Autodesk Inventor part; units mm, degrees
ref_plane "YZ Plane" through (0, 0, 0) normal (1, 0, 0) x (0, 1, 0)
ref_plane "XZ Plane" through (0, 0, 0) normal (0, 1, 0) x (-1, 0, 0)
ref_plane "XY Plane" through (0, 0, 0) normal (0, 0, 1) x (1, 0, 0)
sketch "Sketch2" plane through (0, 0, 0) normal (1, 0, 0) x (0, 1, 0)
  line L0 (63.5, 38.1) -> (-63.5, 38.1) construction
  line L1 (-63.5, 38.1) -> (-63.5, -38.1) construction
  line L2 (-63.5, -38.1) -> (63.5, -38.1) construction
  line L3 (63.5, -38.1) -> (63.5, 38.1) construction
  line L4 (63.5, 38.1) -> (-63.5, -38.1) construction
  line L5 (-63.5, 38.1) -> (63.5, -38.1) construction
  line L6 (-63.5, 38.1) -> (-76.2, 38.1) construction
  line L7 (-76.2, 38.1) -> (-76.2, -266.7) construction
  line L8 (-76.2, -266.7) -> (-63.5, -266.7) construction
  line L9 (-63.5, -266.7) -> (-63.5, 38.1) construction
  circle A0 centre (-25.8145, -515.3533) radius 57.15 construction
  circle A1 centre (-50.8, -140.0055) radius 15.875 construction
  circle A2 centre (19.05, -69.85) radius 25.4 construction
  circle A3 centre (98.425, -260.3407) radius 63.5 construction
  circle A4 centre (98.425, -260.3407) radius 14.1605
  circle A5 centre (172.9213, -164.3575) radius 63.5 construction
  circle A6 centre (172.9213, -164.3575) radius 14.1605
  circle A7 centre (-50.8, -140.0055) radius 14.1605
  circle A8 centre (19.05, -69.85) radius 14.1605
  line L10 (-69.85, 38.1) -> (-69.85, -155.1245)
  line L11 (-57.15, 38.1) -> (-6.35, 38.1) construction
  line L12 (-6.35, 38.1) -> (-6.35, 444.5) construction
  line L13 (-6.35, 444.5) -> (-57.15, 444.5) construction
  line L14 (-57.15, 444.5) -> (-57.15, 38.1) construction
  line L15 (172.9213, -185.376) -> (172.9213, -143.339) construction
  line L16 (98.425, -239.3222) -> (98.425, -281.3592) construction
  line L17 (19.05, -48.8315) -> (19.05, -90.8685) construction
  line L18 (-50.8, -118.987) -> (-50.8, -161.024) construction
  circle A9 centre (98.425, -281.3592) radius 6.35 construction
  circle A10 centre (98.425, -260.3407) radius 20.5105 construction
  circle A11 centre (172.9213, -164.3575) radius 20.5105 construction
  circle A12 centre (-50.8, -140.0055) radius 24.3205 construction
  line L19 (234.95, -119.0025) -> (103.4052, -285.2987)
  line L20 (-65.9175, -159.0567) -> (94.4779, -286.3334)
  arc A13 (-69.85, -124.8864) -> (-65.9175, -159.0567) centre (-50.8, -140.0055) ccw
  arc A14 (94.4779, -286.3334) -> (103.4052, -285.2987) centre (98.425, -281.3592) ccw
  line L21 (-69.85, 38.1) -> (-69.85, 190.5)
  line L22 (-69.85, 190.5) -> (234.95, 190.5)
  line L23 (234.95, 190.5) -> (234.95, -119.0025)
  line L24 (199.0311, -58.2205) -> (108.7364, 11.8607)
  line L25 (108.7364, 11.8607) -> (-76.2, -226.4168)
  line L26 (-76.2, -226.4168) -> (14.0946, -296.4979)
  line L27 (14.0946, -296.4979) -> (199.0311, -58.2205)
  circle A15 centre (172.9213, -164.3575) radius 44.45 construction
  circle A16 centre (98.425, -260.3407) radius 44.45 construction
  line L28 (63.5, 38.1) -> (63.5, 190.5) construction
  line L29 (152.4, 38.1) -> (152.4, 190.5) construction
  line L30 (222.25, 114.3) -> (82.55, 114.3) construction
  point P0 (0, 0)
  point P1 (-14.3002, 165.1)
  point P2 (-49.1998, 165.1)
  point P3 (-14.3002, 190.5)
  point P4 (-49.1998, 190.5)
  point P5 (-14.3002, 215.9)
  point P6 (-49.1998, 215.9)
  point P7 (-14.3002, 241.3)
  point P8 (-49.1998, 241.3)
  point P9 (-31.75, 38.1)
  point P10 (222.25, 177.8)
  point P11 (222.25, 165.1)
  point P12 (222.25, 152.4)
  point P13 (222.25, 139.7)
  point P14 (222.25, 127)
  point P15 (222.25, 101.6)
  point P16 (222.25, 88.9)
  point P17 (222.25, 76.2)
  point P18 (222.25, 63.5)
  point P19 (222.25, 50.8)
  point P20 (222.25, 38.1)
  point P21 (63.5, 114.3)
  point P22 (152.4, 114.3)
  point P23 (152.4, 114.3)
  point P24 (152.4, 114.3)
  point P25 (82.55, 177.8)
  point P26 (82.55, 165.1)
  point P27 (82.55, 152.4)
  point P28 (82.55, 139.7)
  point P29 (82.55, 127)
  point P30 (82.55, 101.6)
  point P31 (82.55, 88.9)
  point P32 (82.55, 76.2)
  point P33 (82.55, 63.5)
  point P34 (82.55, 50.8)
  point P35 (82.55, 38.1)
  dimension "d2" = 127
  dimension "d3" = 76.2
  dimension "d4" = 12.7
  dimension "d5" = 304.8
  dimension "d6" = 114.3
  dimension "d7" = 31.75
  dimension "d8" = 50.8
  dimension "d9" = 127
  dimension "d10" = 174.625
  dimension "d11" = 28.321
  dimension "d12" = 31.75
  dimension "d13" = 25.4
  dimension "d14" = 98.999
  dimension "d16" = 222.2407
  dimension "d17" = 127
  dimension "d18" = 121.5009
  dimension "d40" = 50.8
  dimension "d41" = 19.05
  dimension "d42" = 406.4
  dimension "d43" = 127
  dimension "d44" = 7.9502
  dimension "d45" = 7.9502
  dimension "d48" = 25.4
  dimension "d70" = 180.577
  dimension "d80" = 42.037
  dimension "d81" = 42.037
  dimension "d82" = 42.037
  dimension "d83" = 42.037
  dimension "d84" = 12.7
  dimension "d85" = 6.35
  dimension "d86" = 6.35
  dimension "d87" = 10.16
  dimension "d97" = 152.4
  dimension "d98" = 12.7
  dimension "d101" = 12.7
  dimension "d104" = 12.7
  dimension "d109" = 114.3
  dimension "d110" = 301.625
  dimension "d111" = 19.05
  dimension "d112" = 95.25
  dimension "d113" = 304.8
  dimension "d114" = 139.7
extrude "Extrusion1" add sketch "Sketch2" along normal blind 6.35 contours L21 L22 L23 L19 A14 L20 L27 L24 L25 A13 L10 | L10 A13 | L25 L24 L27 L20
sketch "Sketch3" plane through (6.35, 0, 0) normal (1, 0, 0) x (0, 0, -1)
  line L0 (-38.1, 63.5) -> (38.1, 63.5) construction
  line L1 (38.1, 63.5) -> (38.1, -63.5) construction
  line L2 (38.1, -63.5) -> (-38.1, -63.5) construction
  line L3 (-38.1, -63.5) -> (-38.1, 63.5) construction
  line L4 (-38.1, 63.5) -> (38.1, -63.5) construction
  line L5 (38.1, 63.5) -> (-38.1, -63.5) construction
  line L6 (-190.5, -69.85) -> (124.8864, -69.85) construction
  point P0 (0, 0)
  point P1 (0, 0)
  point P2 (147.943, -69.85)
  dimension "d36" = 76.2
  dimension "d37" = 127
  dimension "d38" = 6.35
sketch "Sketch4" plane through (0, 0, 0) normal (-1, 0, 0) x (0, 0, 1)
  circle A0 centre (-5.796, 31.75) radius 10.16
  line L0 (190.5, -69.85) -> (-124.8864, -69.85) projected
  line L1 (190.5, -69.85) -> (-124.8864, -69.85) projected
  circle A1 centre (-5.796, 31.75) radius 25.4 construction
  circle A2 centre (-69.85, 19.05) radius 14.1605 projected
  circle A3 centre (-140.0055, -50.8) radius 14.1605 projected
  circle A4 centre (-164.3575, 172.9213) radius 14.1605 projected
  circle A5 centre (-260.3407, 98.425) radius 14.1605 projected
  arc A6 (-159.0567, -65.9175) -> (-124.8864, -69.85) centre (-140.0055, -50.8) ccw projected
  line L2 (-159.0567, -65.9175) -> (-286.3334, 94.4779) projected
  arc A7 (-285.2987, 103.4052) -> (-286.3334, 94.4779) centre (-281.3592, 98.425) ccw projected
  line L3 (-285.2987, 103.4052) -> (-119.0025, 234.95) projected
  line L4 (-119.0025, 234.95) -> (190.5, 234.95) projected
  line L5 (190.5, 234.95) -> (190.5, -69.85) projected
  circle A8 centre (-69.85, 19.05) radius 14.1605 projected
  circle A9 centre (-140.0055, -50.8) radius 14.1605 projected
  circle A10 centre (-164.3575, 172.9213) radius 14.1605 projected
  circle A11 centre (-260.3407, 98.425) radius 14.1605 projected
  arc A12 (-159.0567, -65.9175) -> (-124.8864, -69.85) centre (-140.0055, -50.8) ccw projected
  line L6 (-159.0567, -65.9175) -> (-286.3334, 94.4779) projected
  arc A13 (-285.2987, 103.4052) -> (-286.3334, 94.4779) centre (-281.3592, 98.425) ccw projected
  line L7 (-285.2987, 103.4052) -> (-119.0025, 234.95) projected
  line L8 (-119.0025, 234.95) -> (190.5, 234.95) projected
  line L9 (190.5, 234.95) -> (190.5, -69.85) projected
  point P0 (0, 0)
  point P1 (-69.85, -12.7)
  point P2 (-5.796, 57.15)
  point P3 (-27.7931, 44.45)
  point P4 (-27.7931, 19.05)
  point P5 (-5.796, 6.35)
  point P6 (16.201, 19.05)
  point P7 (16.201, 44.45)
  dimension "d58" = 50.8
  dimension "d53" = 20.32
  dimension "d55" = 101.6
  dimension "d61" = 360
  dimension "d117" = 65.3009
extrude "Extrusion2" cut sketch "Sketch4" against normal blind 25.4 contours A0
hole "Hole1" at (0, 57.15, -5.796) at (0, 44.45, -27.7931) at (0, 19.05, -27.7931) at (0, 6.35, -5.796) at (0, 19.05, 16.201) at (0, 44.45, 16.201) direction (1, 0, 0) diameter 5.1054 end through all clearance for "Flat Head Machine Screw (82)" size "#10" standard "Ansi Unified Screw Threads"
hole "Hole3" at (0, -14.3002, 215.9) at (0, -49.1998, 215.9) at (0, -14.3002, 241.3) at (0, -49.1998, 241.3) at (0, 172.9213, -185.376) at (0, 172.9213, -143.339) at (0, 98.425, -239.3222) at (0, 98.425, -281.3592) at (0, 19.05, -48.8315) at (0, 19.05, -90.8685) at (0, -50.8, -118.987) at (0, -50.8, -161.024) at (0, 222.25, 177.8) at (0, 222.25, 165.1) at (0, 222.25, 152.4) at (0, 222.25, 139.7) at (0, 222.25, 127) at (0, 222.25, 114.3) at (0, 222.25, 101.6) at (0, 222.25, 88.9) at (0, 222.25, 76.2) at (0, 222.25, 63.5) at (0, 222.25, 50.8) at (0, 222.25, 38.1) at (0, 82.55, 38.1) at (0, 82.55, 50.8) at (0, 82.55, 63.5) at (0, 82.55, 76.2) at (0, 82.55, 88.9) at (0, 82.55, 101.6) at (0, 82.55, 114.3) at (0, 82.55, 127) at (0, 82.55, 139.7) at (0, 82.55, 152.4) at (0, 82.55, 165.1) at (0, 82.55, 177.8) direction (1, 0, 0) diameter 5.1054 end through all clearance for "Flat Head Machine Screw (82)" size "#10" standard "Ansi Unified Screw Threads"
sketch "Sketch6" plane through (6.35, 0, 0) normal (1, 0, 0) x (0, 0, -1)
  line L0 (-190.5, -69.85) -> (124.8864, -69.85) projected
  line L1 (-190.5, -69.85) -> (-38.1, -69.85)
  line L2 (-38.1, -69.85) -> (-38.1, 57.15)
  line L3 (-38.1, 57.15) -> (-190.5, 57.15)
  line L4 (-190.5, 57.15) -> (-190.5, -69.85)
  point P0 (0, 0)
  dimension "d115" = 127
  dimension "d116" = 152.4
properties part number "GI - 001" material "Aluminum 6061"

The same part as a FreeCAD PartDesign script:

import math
import FreeCAD as App
import Part
import Sketcher
from FreeCAD import Vector
Q = App.Units.Quantity

doc = App.newDocument("Part")
params = doc.addObject("Spreadsheet::Sheet", "Params")
for row, (alias, value) in enumerate([
    ("sketch1_width", "12 in"),
    ("sketch1_radius", "0.25 in"),
    ("sketch1_diameter", "1.115 in"),
    ("pad1_length", "0.25 in"),
    ("sketch2_diameter", "0.8 in"),
    ("pocket1_length", "1 in"),
    ("sketch3_diameter", "0.201 in"),
    ("hole_diameter", "0.201 in"),
    ("sketch4_diameter", "0.201 in"),
    ("hole2_diameter", "0.201 in"),
], start=1):
    params.set(f"A{row}", alias)
    params.set(f"B{row}", "=" + value)
    params.setAlias(f"B{row}", alias)

body = doc.addObject("PartDesign::Body", "Body")

# Sketch on YZ plane
sketch1 = body.newObject("Sketcher::SketchObject", "Sketch")
sketch1.AttachmentSupport = (doc.getObject("YZ_Plane"), [""])
sketch1.MapMode = "FlatFace"
sketch1.addGeometry(Part.LineSegment(Vector(-70, 190, 0), Vector(-70, -125, 0)), False)
sketch1.addGeometry(Part.ArcOfCircle(Part.Circle(Vector(-51, -140, 0), Vector(0, 0, 1), 24), math.radians(142), math.radians(232)), False)
sketch1.addGeometry(Part.LineSegment(Vector(-66, -159, 0), Vector(94, -286, 0)), False)
sketch1.addGeometry(Part.ArcOfCircle(Part.Circle(Vector(98, -281, 0), Vector(0, 0, 1), 6), math.radians(-128), math.radians(-38)), False)
sketch1.addGeometry(Part.LineSegment(Vector(103, -285, 0), Vector(235, -119, 0)), False)
sketch1.addGeometry(Part.LineSegment(Vector(235, -119, 0), Vector(235, 190, 0)), False)
sketch1.addGeometry(Part.LineSegment(Vector(235, 190, 0), Vector(-70, 190, 0)), False)
sketch1.addGeometry(Part.Circle(Vector(-51, -140, 0), Vector(0, 0, 1), 14), False)
sketch1.addGeometry(Part.Circle(Vector(19, -70, 0), Vector(0, 0, 1), 14), False)
sketch1.addGeometry(Part.Circle(Vector(98, -260, 0), Vector(0, 0, 1), 14), False)
sketch1.addGeometry(Part.Circle(Vector(173, -164, 0), Vector(0, 0, 1), 14), False)
sketch1.addConstraint(Sketcher.Constraint("Coincident", 0, 2, 1, 1))
sketch1.addConstraint(Sketcher.Constraint("Tangent", 1, 2, 2, 1))
sketch1.addConstraint(Sketcher.Constraint("Tangent", 2, 2, 3, 1))
sketch1.addConstraint(Sketcher.Constraint("Tangent", 3, 2, 4, 1))
sketch1.addConstraint(Sketcher.Constraint("Coincident", 4, 2, 5, 1))
sketch1.addConstraint(Sketcher.Constraint("Coincident", 5, 2, 6, 1))
sketch1.addConstraint(Sketcher.Constraint("Coincident", 6, 2, 0, 1))
sketch1.addConstraint(Sketcher.Constraint("Vertical", 0))
sketch1.addConstraint(Sketcher.Constraint("Vertical", 5))
sketch1.addConstraint(Sketcher.Constraint("Horizontal", 6))
sketch1.addConstraint(Sketcher.Constraint("Coincident", 7, 3, 1, 3))
sketch1.addConstraint(Sketcher.Constraint("Equal", 7, 8))
sketch1.addConstraint(Sketcher.Constraint("Equal", 8, 9))
sketch1.addConstraint(Sketcher.Constraint("Equal", 9, 10))
sketch1.addConstraint(Sketcher.Constraint("Vertical", 3, 3, 9, 3))
sketch1.addConstraint(Sketcher.Constraint("DistanceX", 6, 2, 6, 1, Q("12 in")))
sketch1.addConstraint(Sketcher.Constraint("Radius", 3, Q("0.25 in")))
sketch1.addConstraint(Sketcher.Constraint("Diameter", 7, Q("1.115 in")))
sketch1.addConstraint(Sketcher.Constraint("DistanceX", 1, 3, -1, 1, Q("2 in")))
sketch1.addConstraint(Sketcher.Constraint("DistanceX", -1, 1, 8, 3, Q("0.75 in")))
sketch1.addConstraint(Sketcher.Constraint("DistanceX", 0, 2, 1, 3, Q("0.75 in")))
sketch1.addConstraint(Sketcher.Constraint("DistanceY", -1, 1, 5, 2, Q("7.5 in")))
sketch1.addConstraint(Sketcher.Constraint("Radius", 1, Q("0.9575 in")))
sketch1.addConstraint(Sketcher.Constraint("DistanceY", 8, 3, -1, 1, Q("2.75 in")))
sketch1.addConstraint(Sketcher.Constraint("DistanceX", -1, 1, 3, 3, Q("3.875 in")))
sketch1.addConstraint(Sketcher.Constraint("DistanceY", 3, 3, 4, 2, Q("6.392 in")))
sketch1.addConstraint(Sketcher.Constraint("DistanceY", 0, 2, 0, 1, Q("315.3864 mm")))
sketch1.addConstraint(Sketcher.Constraint("DistanceY", 5, 1, 5, 2, Q("309.5025 mm")))
sketch1.addConstraint(Sketcher.Constraint("DistanceY", 3, 3, 9, 3, Q("0.8275 in")))
sketch1.addConstraint(Sketcher.Constraint("DistanceY", 2, 2, 10, 3, Q("4.8022 in")))
sketch1.addConstraint(Sketcher.Constraint("DistanceX", -1, 1, 10, 3, Q("172.9213 mm")))
sketch1.setExpression("Constraints[15]", "Params.sketch1_width")
sketch1.setExpression("Constraints[16]", "Params.sketch1_radius")
sketch1.setExpression("Constraints[17]", "Params.sketch1_diameter")
pad1 = body.newObject("PartDesign::Pad", "Pad")
pad1.Profile = sketch1
pad1.setExpression("Length", "Params.pad1_length")

# Sketch on YZ plane
sketch2 = body.newObject("Sketcher::SketchObject", "Sketch001")
sketch2.AttachmentSupport = (doc.getObject("YZ_Plane"), [""])
sketch2.MapMode = "FlatFace"
sketch2.addGeometry(Part.Circle(Vector(32, -6, 0), Vector(0, 0, 1), 10), False)
sketch2.addConstraint(Sketcher.Constraint("Diameter", 0, Q("0.8 in")))
sketch2.addConstraint(Sketcher.Constraint("DistanceX", -1, 1, 0, 3, Q("1.25 in")))
sketch2.addConstraint(Sketcher.Constraint("DistanceY", 0, 3, -1, 1, Q("0.2282 in")))
sketch2.setExpression("Constraints[0]", "Params.sketch2_diameter")
pocket1 = body.newObject("PartDesign::Pocket", "Pocket")
pocket1.Profile = sketch2
pocket1.setExpression("Length", "Params.pocket1_length")
pocket1.Reversed = True

# Sketch on YZ plane
sketch3 = body.newObject("Sketcher::SketchObject", "Sketch002")
sketch3.AttachmentSupport = (doc.getObject("YZ_Plane"), [""])
sketch3.MapMode = "FlatFace"
sketch3.addGeometry(Part.Circle(Vector(57.1, -5.8, 0), Vector(0, 0, 1), 2.6), False)
sketch3.addGeometry(Part.Circle(Vector(44.5, -27.8, 0), Vector(0, 0, 1), 2.6), False)
sketch3.addGeometry(Part.Circle(Vector(19.1, -27.8, 0), Vector(0, 0, 1), 2.6), False)
sketch3.addGeometry(Part.Circle(Vector(6.3, -5.8, 0), Vector(0, 0, 1), 2.6), False)
sketch3.addGeometry(Part.Circle(Vector(19.1, 16.2, 0), Vector(0, 0, 1), 2.6), False)
sketch3.addGeometry(Part.Circle(Vector(44.5, 16.2, 0), Vector(0, 0, 1), 2.6), False)
sketch3.addConstraint(Sketcher.Constraint("Equal", 0, 1))
sketch3.addConstraint(Sketcher.Constraint("Equal", 1, 2))
sketch3.addConstraint(Sketcher.Constraint("Equal", 2, 3))
sketch3.addConstraint(Sketcher.Constraint("Equal", 3, 4))
sketch3.addConstraint(Sketcher.Constraint("Equal", 4, 5))
sketch3.addConstraint(Sketcher.Constraint("Horizontal", 1, 3, 2, 3))
sketch3.addConstraint(Sketcher.Constraint("Horizontal", 0, 3, 3, 3))
sketch3.addConstraint(Sketcher.Constraint("Horizontal", 4, 3, 5, 3))
sketch3.addConstraint(Sketcher.Constraint("Vertical", 2, 3, 4, 3))
sketch3.addConstraint(Sketcher.Constraint("Vertical", 1, 3, 5, 3))
sketch3.addConstraint(Sketcher.Constraint("Diameter", 0, Q("0.201 in")))
sketch3.addConstraint(Sketcher.Constraint("DistanceX", 2, 3, 1, 3, Q("1 in")))
sketch3.addConstraint(Sketcher.Constraint("DistanceX", 3, 3, 0, 3, Q("2 in")))
sketch3.addConstraint(Sketcher.Constraint("DistanceX", 1, 3, 0, 3, Q("0.5 in")))
sketch3.addConstraint(Sketcher.Constraint("DistanceX", -1, 1, 0, 3, Q("2.25 in")))
sketch3.addConstraint(Sketcher.Constraint("DistanceY", 0, 3, -1, 1, Q("0.2282 in")))
sketch3.addConstraint(Sketcher.Constraint("DistanceY", 1, 3, -1, 1, Q("27.793 mm")))
sketch3.addConstraint(Sketcher.Constraint("DistanceY", -1, 1, 4, 3, Q("16.201 mm")))
sketch3.setExpression("Constraints[10]", "Params.sketch3_diameter")
doc.recompute()
hole = body.newObject("PartDesign::Hole", "Hole")
hole.Profile = sketch3
hole.ThreadType = "None"
hole.setExpression("Diameter", "Params.hole_diameter")
hole.DepthType = "ThroughAll"
hole.Reversed = True

# Sketch on YZ plane
sketch4 = body.newObject("Sketcher::SketchObject", "Sketch003")
sketch4.AttachmentSupport = (doc.getObject("YZ_Plane"), [""])
sketch4.MapMode = "FlatFace"
sketch4.addGeometry(Part.Circle(Vector(-14.3, 215.9, 0), Vector(0, 0, 1), 2.6), False)
sketch4.addGeometry(Part.Circle(Vector(-49.2, 215.9, 0), Vector(0, 0, 1), 2.6), False)
sketch4.addGeometry(Part.Circle(Vector(-14.3, 241.3, 0), Vector(0, 0, 1), 2.6), False)
sketch4.addGeometry(Part.Circle(Vector(-49.2, 241.3, 0), Vector(0, 0, 1), 2.6), False)
sketch4.addGeometry(Part.Circle(Vector(172.9, -185.4, 0), Vector(0, 0, 1), 2.6), False)
sketch4.addGeometry(Part.Circle(Vector(172.9, -143.3, 0), Vector(0, 0, 1), 2.6), False)
sketch4.addGeometry(Part.Circle(Vector(98.4, -239.3, 0), Vector(0, 0, 1), 2.6), False)
sketch4.addGeometry(Part.Circle(Vector(98.4, -281.4, 0), Vector(0, 0, 1), 2.6), False)
sketch4.addGeometry(Part.Circle(Vector(19.1, -48.8, 0), Vector(0, 0, 1), 2.6), False)
sketch4.addGeometry(Part.Circle(Vector(19.1, -90.9, 0), Vector(0, 0, 1), 2.6), False)
sketch4.addGeometry(Part.Circle(Vector(-50.8, -119, 0), Vector(0, 0, 1), 2.6), False)
sketch4.addGeometry(Part.Circle(Vector(-50.8, -161, 0), Vector(0, 0, 1), 2.6), False)
sketch4.addGeometry(Part.Circle(Vector(222.2, 177.8, 0), Vector(0, 0, 1), 2.6), False)
sketch4.addGeometry(Part.Circle(Vector(222.2, 165.1, 0), Vector(0, 0, 1), 2.6), False)
sketch4.addGeometry(Part.Circle(Vector(222.2, 152.4, 0), Vector(0, 0, 1), 2.6), False)
sketch4.addGeometry(Part.Circle(Vector(222.2, 139.7, 0), Vector(0, 0, 1), 2.6), False)
sketch4.addGeometry(Part.Circle(Vector(222.2, 127, 0), Vector(0, 0, 1), 2.6), False)
sketch4.addGeometry(Part.Circle(Vector(222.2, 114.3, 0), Vector(0, 0, 1), 2.6), False)
sketch4.addGeometry(Part.Circle(Vector(222.2, 101.6, 0), Vector(0, 0, 1), 2.6), False)
sketch4.addGeometry(Part.Circle(Vector(222.2, 88.9, 0), Vector(0, 0, 1), 2.6), False)
sketch4.addGeometry(Part.Circle(Vector(222.2, 76.2, 0), Vector(0, 0, 1), 2.6), False)
sketch4.addGeometry(Part.Circle(Vector(222.2, 63.5, 0), Vector(0, 0, 1), 2.6), False)
sketch4.addGeometry(Part.Circle(Vector(222.2, 50.8, 0), Vector(0, 0, 1), 2.6), False)
sketch4.addGeometry(Part.Circle(Vector(222.2, 38.1, 0), Vector(0, 0, 1), 2.6), False)
sketch4.addGeometry(Part.Circle(Vector(82.5, 38.1, 0), Vector(0, 0, 1), 2.6), False)
sketch4.addGeometry(Part.Circle(Vector(82.5, 50.8, 0), Vector(0, 0, 1), 2.6), False)
sketch4.addGeometry(Part.Circle(Vector(82.5, 63.5, 0), Vector(0, 0, 1), 2.6), False)
sketch4.addGeometry(Part.Circle(Vector(82.5, 76.2, 0), Vector(0, 0, 1), 2.6), False)
sketch4.addGeometry(Part.Circle(Vector(82.5, 88.9, 0), Vector(0, 0, 1), 2.6), False)
sketch4.addGeometry(Part.Circle(Vector(82.5, 101.6, 0), Vector(0, 0, 1), 2.6), False)
sketch4.addGeometry(Part.Circle(Vector(82.5, 114.3, 0), Vector(0, 0, 1), 2.6), False)
sketch4.addGeometry(Part.Circle(Vector(82.5, 127, 0), Vector(0, 0, 1), 2.6), False)
sketch4.addGeometry(Part.Circle(Vector(82.5, 139.7, 0), Vector(0, 0, 1), 2.6), False)
sketch4.addGeometry(Part.Circle(Vector(82.5, 152.4, 0), Vector(0, 0, 1), 2.6), False)
sketch4.addGeometry(Part.Circle(Vector(82.5, 165.1, 0), Vector(0, 0, 1), 2.6), False)
sketch4.addGeometry(Part.Circle(Vector(82.5, 177.8, 0), Vector(0, 0, 1), 2.6), False)
sketch4.addConstraint(Sketcher.Constraint("Equal", 0, 1))
sketch4.addConstraint(Sketcher.Constraint("Equal", 1, 2))
sketch4.addConstraint(Sketcher.Constraint("Equal", 2, 3))
sketch4.addConstraint(Sketcher.Constraint("Equal", 3, 4))
sketch4.addConstraint(Sketcher.Constraint("Equal", 4, 5))
sketch4.addConstraint(Sketcher.Constraint("Equal", 5, 6))
sketch4.addConstraint(Sketcher.Constraint("Equal", 6, 7))
sketch4.addConstraint(Sketcher.Constraint("Equal", 7, 8))
sketch4.addConstraint(Sketcher.Constraint("Equal", 8, 9))
sketch4.addConstraint(Sketcher.Constraint("Equal", 9, 10))
sketch4.addConstraint(Sketcher.Constraint("Equal", 10, 11))
sketch4.addConstraint(Sketcher.Constraint("Equal", 11, 12))
sketch4.addConstraint(Sketcher.Constraint("Equal", 12, 13))
sketch4.addConstraint(Sketcher.Constraint("Equal", 13, 14))
sketch4.addConstraint(Sketcher.Constraint("Equal", 14, 15))
sketch4.addConstraint(Sketcher.Constraint("Equal", 15, 16))
sketch4.addConstraint(Sketcher.Constraint("Equal", 16, 17))
sketch4.addConstraint(Sketcher.Constraint("Equal", 17, 18))
sketch4.addConstraint(Sketcher.Constraint("Equal", 18, 19))
sketch4.addConstraint(Sketcher.Constraint("Equal", 19, 20))
sketch4.addConstraint(Sketcher.Constraint("Equal", 20, 21))
sketch4.addConstraint(Sketcher.Constraint("Equal", 21, 22))
sketch4.addConstraint(Sketcher.Constraint("Equal", 22, 23))
sketch4.addConstraint(Sketcher.Constraint("Equal", 23, 24))
sketch4.addConstraint(Sketcher.Constraint("Equal", 24, 25))
sketch4.addConstraint(Sketcher.Constraint("Equal", 25, 26))
sketch4.addConstraint(Sketcher.Constraint("Equal", 26, 27))
sketch4.addConstraint(Sketcher.Constraint("Equal", 27, 28))
sketch4.addConstraint(Sketcher.Constraint("Equal", 28, 29))
sketch4.addConstraint(Sketcher.Constraint("Equal", 29, 30))
sketch4.addConstraint(Sketcher.Constraint("Equal", 30, 31))
sketch4.addConstraint(Sketcher.Constraint("Equal", 31, 32))
sketch4.addConstraint(Sketcher.Constraint("Equal", 32, 33))
sketch4.addConstraint(Sketcher.Constraint("Equal", 33, 34))
sketch4.addConstraint(Sketcher.Constraint("Equal", 34, 35))
sketch4.addConstraint(Sketcher.Constraint("Horizontal", 0, 3, 1, 3))
sketch4.addConstraint(Sketcher.Constraint("Horizontal", 2, 3, 3, 3))
sketch4.addConstraint(Sketcher.Constraint("Horizontal", 23, 3, 24, 3))
sketch4.addConstraint(Sketcher.Constraint("Horizontal", 22, 3, 25, 3))
sketch4.addConstraint(Sketcher.Constraint("Horizontal", 21, 3, 26, 3))
sketch4.addConstraint(Sketcher.Constraint("Horizontal", 20, 3, 27, 3))
sketch4.addConstraint(Sketcher.Constraint("Horizontal", 19, 3, 28, 3))
sketch4.addConstraint(Sketcher.Constraint("Horizontal", 18, 3, 29, 3))
sketch4.addConstraint(Sketcher.Constraint("Horizontal", 17, 3, 30, 3))
sketch4.addConstraint(Sketcher.Constraint("Horizontal", 16, 3, 31, 3))
sketch4.addConstraint(Sketcher.Constraint("Horizontal", 15, 3, 32, 3))
sketch4.addConstraint(Sketcher.Constraint("Horizontal", 14, 3, 33, 3))
sketch4.addConstraint(Sketcher.Constraint("Horizontal", 13, 3, 34, 3))
sketch4.addConstraint(Sketcher.Constraint("Horizontal", 12, 3, 35, 3))
sketch4.addConstraint(Sketcher.Constraint("Vertical", 0, 3, 2, 3))
sketch4.addConstraint(Sketcher.Constraint("Vertical", 1, 3, 3, 3))
sketch4.addConstraint(Sketcher.Constraint("Vertical", 4, 3, 5, 3))
sketch4.addConstraint(Sketcher.Constraint("Vertical", 6, 3, 7, 3))
sketch4.addConstraint(Sketcher.Constraint("Vertical", 8, 3, 9, 3))
sketch4.addConstraint(Sketcher.Constraint("Vertical", 10, 3, 11, 3))
sketch4.addConstraint(Sketcher.Constraint("Vertical", 12, 3, 13, 3))
sketch4.addConstraint(Sketcher.Constraint("Vertical", 13, 3, 14, 3))
sketch4.addConstraint(Sketcher.Constraint("Vertical", 14, 3, 15, 3))
sketch4.addConstraint(Sketcher.Constraint("Vertical", 15, 3, 16, 3))
sketch4.addConstraint(Sketcher.Constraint("Vertical", 16, 3, 17, 3))
sketch4.addConstraint(Sketcher.Constraint("Vertical", 17, 3, 18, 3))
sketch4.addConstraint(Sketcher.Constraint("Vertical", 18, 3, 19, 3))
sketch4.addConstraint(Sketcher.Constraint("Vertical", 19, 3, 20, 3))
sketch4.addConstraint(Sketcher.Constraint("Vertical", 20, 3, 21, 3))
sketch4.addConstraint(Sketcher.Constraint("Vertical", 21, 3, 22, 3))
sketch4.addConstraint(Sketcher.Constraint("Vertical", 22, 3, 23, 3))
sketch4.addConstraint(Sketcher.Constraint("Vertical", 24, 3, 25, 3))
sketch4.addConstraint(Sketcher.Constraint("Vertical", 25, 3, 26, 3))
sketch4.addConstraint(Sketcher.Constraint("Vertical", 26, 3, 27, 3))
sketch4.addConstraint(Sketcher.Constraint("Vertical", 27, 3, 28, 3))
sketch4.addConstraint(Sketcher.Constraint("Vertical", 28, 3, 29, 3))
sketch4.addConstraint(Sketcher.Constraint("Vertical", 29, 3, 30, 3))
sketch4.addConstraint(Sketcher.Constraint("Vertical", 30, 3, 31, 3))
sketch4.addConstraint(Sketcher.Constraint("Vertical", 31, 3, 32, 3))
sketch4.addConstraint(Sketcher.Constraint("Vertical", 32, 3, 33, 3))
sketch4.addConstraint(Sketcher.Constraint("Vertical", 33, 3, 34, 3))
sketch4.addConstraint(Sketcher.Constraint("Vertical", 34, 3, 35, 3))
sketch4.addConstraint(Sketcher.Constraint("Diameter", 0, Q("0.201 in")))
sketch4.addConstraint(Sketcher.Constraint("DistanceX", 10, 3, -1, 1, Q("2 in")))
sketch4.addConstraint(Sketcher.Constraint("DistanceY", -1, 1, 12, 3, Q("7 in")))
sketch4.addConstraint(Sketcher.Constraint("DistanceY", -1, 1, 14, 3, Q("6 in")))
sketch4.addConstraint(Sketcher.Constraint("DistanceY", -1, 1, 16, 3, Q("5 in")))
sketch4.addConstraint(Sketcher.Constraint("DistanceY", -1, 1, 18, 3, Q("4 in")))
sketch4.addConstraint(Sketcher.Constraint("DistanceY", -1, 1, 20, 3, Q("3 in")))
sketch4.addConstraint(Sketcher.Constraint("DistanceY", -1, 1, 22, 3, Q("2 in")))
sketch4.addConstraint(Sketcher.Constraint("DistanceY", 0, 3, 2, 3, Q("1 in")))
sketch4.addConstraint(Sketcher.Constraint("DistanceX", 8, 3, 12, 3, Q("8 in")))
sketch4.addConstraint(Sketcher.Constraint("DistanceY", 13, 3, 0, 3, Q("2 in")))
sketch4.addConstraint(Sketcher.Constraint("DistanceY", 15, 3, 13, 3, Q("1 in")))
sketch4.addConstraint(Sketcher.Constraint("DistanceY", 17, 3, 15, 3, Q("1 in")))
sketch4.addConstraint(Sketcher.Constraint("DistanceY", 19, 3, 17, 3, Q("1 in")))
sketch4.addConstraint(Sketcher.Constraint("DistanceY", 21, 3, 19, 3, Q("1 in")))
sketch4.addConstraint(Sketcher.Constraint("DistanceY", 23, 3, 21, 3, Q("1 in")))
sketch4.addConstraint(Sketcher.Constraint("DistanceY", -1, 1, 0, 3, Q("8.5 in")))
sketch4.addConstraint(Sketcher.Constraint("DistanceX", 8, 3, 24, 3, Q("2.5 in")))
sketch4.addConstraint(Sketcher.Constraint("DistanceX", -1, 1, 8, 3, Q("0.75 in")))
sketch4.addConstraint(Sketcher.Constraint("DistanceX", 0, 3, -1, 1, Q("0.563 in")))
sketch4.addConstraint(Sketcher.Constraint("DistanceX", 1, 3, -1, 1, Q("1.937 in")))
sketch4.addConstraint(Sketcher.Constraint("DistanceX", -1, 1, 6, 3, Q("3.875 in")))
sketch4.addConstraint(Sketcher.Constraint("DistanceY", 4, 3, 5, 3, Q("1.655 in")))
sketch4.addConstraint(Sketcher.Constraint("DistanceY", 7, 3, 6, 3, Q("1.655 in")))
sketch4.addConstraint(Sketcher.Constraint("DistanceY", 9, 3, 8, 3, Q("1.655 in")))
sketch4.addConstraint(Sketcher.Constraint("DistanceY", 11, 3, 10, 3, Q("1.655 in")))
sketch4.addConstraint(Sketcher.Constraint("DistanceY", 8, 3, -1, 1, Q("1.9225 in")))
sketch4.addConstraint(Sketcher.Constraint("DistanceY", 6, 3, 10, 3, Q("4.7376 in")))
sketch4.addConstraint(Sketcher.Constraint("DistanceX", -1, 1, 4, 3, Q("172.9213 mm")))
sketch4.addConstraint(Sketcher.Constraint("DistanceY", 4, 3, -1, 1, Q("185.376 mm")))
sketch4.addConstraint(Sketcher.Constraint("DistanceY", 6, 3, -1, 1, Q("239.3222 mm")))
sketch4.setExpression("Constraints[77]", "Params.sketch4_diameter")
doc.recompute()
hole2 = body.newObject("PartDesign::Hole", "Hole001")
hole2.Profile = sketch4
hole2.ThreadType = "None"
hole2.setExpression("Diameter", "Params.hole2_diameter")
hole2.DepthType = "ThroughAll"
hole2.Reversed = True

doc.recompute()
